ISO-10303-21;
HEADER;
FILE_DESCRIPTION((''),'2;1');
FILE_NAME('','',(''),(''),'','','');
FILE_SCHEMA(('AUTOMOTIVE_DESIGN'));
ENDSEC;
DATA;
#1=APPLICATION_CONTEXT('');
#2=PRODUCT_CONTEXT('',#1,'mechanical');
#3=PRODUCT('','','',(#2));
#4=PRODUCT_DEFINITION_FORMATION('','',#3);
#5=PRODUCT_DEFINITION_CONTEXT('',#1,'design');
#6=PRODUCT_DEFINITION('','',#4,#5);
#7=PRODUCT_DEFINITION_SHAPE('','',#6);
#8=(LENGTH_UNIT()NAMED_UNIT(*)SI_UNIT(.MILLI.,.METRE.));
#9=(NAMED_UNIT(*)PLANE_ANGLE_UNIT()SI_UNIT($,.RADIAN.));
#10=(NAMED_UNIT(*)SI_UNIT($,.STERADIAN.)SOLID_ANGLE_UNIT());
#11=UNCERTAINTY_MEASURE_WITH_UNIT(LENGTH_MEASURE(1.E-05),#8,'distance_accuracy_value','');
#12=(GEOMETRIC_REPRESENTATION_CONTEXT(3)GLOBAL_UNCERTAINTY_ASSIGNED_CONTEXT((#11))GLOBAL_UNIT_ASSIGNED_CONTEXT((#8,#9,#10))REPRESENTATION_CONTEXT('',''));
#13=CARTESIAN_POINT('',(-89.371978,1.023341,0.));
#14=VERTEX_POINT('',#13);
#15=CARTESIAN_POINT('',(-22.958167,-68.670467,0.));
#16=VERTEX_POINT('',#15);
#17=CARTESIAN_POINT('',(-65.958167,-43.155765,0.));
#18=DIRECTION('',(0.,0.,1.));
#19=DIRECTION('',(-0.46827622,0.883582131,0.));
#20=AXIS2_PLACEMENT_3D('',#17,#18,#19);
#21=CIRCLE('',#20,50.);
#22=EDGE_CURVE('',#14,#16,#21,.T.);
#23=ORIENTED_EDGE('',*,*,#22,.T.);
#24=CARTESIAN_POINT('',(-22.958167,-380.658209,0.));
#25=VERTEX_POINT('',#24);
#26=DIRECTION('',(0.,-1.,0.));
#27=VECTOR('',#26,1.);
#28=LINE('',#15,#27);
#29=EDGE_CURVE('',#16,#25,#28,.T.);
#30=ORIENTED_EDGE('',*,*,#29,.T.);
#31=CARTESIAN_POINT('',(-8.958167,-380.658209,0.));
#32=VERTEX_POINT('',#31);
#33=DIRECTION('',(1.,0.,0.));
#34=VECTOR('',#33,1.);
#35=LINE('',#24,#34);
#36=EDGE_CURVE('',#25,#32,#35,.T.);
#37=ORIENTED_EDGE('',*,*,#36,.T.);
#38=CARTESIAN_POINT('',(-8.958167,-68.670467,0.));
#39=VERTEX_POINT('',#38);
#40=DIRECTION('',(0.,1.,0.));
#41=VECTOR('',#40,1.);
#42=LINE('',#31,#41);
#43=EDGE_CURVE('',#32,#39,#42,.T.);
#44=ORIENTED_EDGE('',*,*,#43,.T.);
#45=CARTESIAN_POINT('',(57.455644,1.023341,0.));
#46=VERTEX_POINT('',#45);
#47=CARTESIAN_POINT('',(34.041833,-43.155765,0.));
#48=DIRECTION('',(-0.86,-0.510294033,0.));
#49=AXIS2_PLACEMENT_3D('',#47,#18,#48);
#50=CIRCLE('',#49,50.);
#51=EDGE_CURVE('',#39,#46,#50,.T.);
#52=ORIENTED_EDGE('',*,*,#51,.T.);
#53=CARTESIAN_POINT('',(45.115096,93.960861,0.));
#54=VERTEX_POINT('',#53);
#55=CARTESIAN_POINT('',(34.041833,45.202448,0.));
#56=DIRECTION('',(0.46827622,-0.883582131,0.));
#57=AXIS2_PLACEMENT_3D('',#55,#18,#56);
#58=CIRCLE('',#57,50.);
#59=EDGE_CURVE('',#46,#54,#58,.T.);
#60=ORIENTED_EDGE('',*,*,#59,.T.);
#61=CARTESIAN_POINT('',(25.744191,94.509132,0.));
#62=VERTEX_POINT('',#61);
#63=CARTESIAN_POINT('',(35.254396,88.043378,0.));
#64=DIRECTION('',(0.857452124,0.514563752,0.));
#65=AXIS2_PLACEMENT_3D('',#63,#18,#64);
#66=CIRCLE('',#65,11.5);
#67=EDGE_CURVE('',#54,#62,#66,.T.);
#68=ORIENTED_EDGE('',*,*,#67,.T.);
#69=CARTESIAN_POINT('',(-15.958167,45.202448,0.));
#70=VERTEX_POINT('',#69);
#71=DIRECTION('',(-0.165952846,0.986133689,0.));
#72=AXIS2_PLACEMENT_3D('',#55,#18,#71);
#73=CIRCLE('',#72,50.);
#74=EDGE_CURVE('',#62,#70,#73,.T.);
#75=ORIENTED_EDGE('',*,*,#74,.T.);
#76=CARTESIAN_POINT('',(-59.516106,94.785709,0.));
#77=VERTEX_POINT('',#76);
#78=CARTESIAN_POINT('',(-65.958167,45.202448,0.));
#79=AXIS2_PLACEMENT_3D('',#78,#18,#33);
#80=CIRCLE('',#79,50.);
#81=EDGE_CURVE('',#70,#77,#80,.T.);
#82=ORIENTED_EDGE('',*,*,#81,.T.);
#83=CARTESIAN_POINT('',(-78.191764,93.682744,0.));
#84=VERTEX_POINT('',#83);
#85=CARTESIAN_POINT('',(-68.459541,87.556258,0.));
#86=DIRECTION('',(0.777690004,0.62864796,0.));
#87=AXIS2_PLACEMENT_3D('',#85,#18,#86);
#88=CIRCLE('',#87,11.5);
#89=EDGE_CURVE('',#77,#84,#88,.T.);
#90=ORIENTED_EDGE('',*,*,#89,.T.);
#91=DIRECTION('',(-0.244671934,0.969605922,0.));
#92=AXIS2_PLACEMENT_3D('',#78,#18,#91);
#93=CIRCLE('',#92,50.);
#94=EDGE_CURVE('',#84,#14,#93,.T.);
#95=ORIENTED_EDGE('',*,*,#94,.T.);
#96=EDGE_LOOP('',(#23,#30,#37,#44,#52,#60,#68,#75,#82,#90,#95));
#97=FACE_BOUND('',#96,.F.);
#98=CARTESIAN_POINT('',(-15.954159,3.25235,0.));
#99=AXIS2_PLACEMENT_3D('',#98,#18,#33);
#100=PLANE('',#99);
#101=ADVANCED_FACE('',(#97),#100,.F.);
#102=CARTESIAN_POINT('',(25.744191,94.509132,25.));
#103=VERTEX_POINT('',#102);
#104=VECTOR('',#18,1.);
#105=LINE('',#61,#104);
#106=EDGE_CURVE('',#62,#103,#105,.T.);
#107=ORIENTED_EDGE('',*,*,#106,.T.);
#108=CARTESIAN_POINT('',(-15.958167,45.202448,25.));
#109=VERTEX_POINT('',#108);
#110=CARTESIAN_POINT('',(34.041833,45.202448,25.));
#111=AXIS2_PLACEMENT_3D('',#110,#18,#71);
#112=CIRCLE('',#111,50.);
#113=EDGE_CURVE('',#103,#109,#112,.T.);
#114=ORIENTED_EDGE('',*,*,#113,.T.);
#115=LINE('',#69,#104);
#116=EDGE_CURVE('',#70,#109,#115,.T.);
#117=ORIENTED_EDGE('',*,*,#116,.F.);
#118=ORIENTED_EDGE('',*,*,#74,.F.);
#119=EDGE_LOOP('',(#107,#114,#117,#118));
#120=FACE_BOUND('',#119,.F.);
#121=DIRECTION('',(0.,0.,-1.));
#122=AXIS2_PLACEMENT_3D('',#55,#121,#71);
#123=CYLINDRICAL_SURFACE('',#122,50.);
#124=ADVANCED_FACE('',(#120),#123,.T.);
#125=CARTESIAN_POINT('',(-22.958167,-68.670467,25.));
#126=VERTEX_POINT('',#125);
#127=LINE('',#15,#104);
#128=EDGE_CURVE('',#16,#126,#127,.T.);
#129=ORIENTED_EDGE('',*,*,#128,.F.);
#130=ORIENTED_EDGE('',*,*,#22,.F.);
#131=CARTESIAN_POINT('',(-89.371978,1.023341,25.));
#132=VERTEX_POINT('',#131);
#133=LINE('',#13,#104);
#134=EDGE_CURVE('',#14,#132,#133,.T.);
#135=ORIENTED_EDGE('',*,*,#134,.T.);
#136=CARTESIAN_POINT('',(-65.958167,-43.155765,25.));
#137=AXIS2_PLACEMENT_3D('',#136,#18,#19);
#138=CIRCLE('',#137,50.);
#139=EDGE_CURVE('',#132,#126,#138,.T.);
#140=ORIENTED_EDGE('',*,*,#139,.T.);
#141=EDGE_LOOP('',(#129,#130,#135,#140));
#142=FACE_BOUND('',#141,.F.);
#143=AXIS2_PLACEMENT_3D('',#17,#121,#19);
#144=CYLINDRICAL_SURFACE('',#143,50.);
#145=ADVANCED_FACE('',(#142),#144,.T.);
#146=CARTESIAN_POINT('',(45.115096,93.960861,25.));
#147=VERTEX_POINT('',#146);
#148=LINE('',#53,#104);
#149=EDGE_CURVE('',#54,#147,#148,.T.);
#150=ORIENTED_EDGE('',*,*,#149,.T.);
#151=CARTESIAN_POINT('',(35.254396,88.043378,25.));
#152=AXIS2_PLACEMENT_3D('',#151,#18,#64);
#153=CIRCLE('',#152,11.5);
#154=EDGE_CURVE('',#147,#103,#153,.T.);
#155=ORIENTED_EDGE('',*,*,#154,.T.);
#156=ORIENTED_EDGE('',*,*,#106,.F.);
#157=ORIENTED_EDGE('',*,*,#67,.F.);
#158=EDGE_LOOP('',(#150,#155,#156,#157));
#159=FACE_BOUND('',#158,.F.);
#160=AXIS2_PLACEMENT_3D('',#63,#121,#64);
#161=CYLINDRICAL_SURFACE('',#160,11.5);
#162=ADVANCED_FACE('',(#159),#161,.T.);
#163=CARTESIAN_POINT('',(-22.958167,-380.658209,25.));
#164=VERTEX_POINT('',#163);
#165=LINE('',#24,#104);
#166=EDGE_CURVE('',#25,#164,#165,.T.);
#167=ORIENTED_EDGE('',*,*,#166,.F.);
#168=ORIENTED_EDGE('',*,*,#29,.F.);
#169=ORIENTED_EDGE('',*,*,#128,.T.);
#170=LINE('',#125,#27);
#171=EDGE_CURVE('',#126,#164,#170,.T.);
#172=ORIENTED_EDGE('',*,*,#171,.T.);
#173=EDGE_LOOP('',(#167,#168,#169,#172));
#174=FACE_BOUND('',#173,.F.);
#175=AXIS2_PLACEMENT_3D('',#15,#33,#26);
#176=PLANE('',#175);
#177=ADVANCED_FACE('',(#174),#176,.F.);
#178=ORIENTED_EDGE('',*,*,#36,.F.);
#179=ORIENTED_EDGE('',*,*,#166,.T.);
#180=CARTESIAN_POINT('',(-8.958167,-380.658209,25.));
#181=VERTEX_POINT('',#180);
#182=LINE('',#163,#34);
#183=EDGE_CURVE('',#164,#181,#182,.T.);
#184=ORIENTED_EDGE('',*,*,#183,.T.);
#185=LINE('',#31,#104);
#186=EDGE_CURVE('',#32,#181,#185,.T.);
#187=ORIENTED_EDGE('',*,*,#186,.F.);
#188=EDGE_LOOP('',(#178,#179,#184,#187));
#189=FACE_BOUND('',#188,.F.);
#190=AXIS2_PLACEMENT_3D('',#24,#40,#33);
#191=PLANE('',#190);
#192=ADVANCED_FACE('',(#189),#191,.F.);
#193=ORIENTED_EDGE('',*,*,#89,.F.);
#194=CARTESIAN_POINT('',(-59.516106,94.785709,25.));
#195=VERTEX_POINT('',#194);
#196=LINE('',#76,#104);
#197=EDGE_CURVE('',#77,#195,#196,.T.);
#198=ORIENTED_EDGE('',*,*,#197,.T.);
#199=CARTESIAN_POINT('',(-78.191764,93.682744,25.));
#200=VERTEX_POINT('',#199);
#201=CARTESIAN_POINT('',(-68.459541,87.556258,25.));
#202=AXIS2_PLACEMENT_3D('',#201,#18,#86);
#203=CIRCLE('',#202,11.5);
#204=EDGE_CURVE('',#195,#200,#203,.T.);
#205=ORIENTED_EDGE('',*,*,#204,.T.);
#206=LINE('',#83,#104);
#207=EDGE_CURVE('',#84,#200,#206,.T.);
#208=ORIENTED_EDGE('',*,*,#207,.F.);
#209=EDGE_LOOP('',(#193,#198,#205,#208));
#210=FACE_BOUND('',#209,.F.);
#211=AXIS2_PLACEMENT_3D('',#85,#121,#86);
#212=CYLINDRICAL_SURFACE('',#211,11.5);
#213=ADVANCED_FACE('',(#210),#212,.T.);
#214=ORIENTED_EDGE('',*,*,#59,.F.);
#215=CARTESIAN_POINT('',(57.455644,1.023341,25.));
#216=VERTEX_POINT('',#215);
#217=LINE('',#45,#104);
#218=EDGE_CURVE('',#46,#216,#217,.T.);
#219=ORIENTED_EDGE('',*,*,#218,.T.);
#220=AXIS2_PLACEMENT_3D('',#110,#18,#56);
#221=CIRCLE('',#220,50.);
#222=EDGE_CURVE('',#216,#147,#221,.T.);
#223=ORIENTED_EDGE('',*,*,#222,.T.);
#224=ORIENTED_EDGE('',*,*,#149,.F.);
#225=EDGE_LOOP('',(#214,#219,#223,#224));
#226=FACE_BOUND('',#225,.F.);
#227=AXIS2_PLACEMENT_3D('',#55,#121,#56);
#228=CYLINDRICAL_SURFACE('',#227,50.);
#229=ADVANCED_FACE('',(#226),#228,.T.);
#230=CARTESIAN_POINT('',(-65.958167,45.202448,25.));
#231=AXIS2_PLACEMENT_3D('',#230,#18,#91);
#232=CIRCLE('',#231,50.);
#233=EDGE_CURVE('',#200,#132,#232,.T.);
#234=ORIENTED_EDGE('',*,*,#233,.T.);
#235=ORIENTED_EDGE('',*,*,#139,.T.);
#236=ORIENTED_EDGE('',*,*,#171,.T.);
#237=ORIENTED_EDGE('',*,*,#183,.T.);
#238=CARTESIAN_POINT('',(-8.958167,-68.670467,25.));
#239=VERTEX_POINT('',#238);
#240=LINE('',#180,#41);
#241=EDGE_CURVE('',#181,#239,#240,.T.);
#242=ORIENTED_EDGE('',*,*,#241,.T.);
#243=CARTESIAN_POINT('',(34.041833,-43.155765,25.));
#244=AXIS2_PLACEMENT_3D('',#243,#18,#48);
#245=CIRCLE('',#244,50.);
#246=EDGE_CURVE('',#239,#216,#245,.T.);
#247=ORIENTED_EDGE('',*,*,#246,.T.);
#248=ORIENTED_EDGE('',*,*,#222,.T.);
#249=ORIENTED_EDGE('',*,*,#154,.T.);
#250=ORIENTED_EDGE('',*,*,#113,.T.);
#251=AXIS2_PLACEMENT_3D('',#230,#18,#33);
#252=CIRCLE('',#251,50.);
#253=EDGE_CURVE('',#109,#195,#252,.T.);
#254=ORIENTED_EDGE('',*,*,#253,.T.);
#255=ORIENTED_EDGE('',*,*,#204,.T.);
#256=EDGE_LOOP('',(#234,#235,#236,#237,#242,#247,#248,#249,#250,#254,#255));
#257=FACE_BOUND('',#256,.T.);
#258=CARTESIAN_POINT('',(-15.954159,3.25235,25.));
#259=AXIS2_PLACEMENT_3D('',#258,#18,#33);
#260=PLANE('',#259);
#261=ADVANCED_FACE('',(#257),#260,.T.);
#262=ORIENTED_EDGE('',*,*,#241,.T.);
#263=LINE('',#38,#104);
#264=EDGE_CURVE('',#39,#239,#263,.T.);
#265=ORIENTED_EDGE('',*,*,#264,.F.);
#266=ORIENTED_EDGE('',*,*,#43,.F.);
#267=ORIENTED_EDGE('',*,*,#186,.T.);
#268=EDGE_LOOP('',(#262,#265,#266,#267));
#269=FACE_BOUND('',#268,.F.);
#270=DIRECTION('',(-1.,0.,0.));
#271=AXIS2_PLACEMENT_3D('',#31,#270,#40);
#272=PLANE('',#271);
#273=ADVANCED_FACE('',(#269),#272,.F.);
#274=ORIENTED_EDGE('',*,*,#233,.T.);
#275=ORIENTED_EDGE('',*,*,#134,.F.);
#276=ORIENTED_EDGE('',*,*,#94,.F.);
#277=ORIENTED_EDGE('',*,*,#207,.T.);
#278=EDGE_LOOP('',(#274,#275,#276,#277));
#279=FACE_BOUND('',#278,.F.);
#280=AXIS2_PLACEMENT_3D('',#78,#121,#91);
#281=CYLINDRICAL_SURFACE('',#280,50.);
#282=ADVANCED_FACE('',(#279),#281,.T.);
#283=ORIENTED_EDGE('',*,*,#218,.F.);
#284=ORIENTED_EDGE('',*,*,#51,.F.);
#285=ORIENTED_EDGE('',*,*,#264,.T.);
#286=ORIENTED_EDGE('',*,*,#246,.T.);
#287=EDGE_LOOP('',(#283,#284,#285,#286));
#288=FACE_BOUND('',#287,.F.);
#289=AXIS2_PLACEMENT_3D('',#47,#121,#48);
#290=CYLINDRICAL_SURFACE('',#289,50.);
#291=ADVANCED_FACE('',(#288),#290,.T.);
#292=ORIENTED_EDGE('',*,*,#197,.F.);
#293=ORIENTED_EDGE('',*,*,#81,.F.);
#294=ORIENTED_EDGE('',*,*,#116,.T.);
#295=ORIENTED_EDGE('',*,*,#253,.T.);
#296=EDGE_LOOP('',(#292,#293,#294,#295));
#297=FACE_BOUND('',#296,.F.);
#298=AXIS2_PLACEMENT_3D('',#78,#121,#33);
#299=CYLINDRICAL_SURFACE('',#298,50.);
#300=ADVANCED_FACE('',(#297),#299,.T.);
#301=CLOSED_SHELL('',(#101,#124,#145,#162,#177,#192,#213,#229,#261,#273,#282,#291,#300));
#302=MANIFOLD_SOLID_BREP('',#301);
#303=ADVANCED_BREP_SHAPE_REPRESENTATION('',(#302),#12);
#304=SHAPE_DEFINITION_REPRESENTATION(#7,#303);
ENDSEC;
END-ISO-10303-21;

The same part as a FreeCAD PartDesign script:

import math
import FreeCAD as App
import Part
import Sketcher
from FreeCAD import Vector
Q = App.Units.Quantity

doc = App.newDocument("Part")
body = doc.addObject("PartDesign::Body", "Body")

# Sketch on XY plane
sketch1 = doc.addObject("Sketcher::SketchObject", "Sketch")
body.addObject(sketch1)
sketch1.AttachmentSupport = (doc.XY_Plane, [""])
sketch1.MapMode = "FlatFace"
sketch1.addGeometry([
    Part.LineSegment(Vector(-9, -381, 0), Vector(-9, -69, 0)),  # 0
    Part.ArcOfCircle(Part.Circle(Vector(34, -43, 0), Vector(0, 0, 1), 50), math.radians(-149), math.radians(62)),  # 1
    Part.ArcOfCircle(Part.Circle(Vector(34, 45, 0), Vector(0, 0, 1), 50), math.radians(-62), math.radians(77)),  # 2
    Part.ArcOfCircle(Part.Circle(Vector(35, 88, 0), Vector(0, 0, 1), 12), math.radians(31), math.radians(146)),  # 3
    Part.ArcOfCircle(Part.Circle(Vector(34, 45, 0), Vector(0, 0, 1), 50), math.radians(100), math.radians(180)),  # 4
    Part.ArcOfCircle(Part.Circle(Vector(-66, 45, 0), Vector(0, 0, 1), 50), math.radians(0), math.radians(83)),  # 5
    Part.ArcOfCircle(Part.Circle(Vector(-68, 88, 0), Vector(0, 0, 1), 12), math.radians(39), math.radians(148)),  # 6
    Part.ArcOfCircle(Part.Circle(Vector(-66, 45, 0), Vector(0, 0, 1), 50), math.radians(104), math.radians(242)),  # 7
    Part.ArcOfCircle(Part.Circle(Vector(-66, -43, 0), Vector(0, 0, 1), 50), math.radians(118), math.radians(329)),  # 8
    Part.LineSegment(Vector(-23, -69, 0), Vector(-23, -381, 0)),  # 9
    Part.LineSegment(Vector(-23, -381, 0), Vector(-9, -381, 0)),  # 10
], False)
sketch1.addConstraint([
    Sketcher.Constraint("Coincident", 0, 2, 1, 1),
    Sketcher.Constraint("Coincident", 1, 2, 2, 1),
    Sketcher.Constraint("Coincident", 2, 2, 3, 1),
    Sketcher.Constraint("Coincident", 3, 2, 4, 1),
    Sketcher.Constraint("Tangent", 4, 2, 5, 1),
    Sketcher.Constraint("Coincident", 5, 2, 6, 1),
    Sketcher.Constraint("Coincident", 6, 2, 7, 1),
    Sketcher.Constraint("Coincident", 7, 2, 8, 1),
    Sketcher.Constraint("Coincident", 8, 2, 9, 1),
    Sketcher.Constraint("Coincident", 9, 2, 10, 1),
    Sketcher.Constraint("Coincident", 10, 2, 0, 1),
    Sketcher.Constraint("Vertical", 0),
    Sketcher.Constraint("Vertical", 9),
    Sketcher.Constraint("Horizontal", 10),
    Sketcher.Constraint("Coincident", 4, 3, 2, 3),
    Sketcher.Constraint("Coincident", 7, 3, 5, 3),
    Sketcher.Constraint("Equal", 1, 2),
    Sketcher.Constraint("Equal", 2, 4),
    Sketcher.Constraint("Equal", 4, 5),
    Sketcher.Constraint("Equal", 3, 6),
    Sketcher.Constraint("Equal", 5, 7),
    Sketcher.Constraint("Equal", 7, 8),
    Sketcher.Constraint("Horizontal", 4, 3, 5, 3),
    Sketcher.Constraint("Horizontal", 1, 3, 8, 3),
    Sketcher.Constraint("Horizontal", 1, 2, 7, 2),
    Sketcher.Constraint("Horizontal", 0, 2, 8, 2),
    Sketcher.Constraint("Vertical", 1, 3, 2, 3),
    Sketcher.Constraint("Radius", 1, Q("50 mm")),
    Sketcher.Constraint("Radius", 3, Q("11.5 mm")),
    Sketcher.Constraint("DistanceX", 10, 1, 10, 2, Q("14 mm")),
    Sketcher.Constraint("DistanceX", 3, 3, 2, 2, Q("9.860699 mm")),
    Sketcher.Constraint("DistanceY", 0, 1, 0, 2, Q("311.987742 mm")),
    Sketcher.Constraint("DistanceX", 6, 3, -1, 1, Q("68.459541 mm")),
    Sketcher.Constraint("DistanceY", -1, 1, 1, 2, Q("1.023341 mm")),
    Sketcher.Constraint("DistanceY", -1, 1, 2, 2, Q("93.960861 mm")),
    Sketcher.Constraint("DistanceX", -1, 1, 3, 2, Q("25.744191 mm")),
    Sketcher.Constraint("DistanceY", -1, 1, 5, 2, Q("94.785709 mm")),
    Sketcher.Constraint("DistanceX", 7, 2, -1, 1, Q("89.371978 mm")),
])
pad1 = doc.addObject("PartDesign::Pad", "Pad")
body.addObject(pad1)
pad1.Profile = sketch1
pad1.Length = 25

# Sketch on XY plane
sketch2 = doc.addObject("Sketcher::SketchObject", "Sketch001")
body.addObject(sketch2)
sketch2.AttachmentSupport = (doc.XY_Plane, [""])
sketch2.MapMode = "FlatFace"
sketch2.addGeometry([
    Part.LineSegment(Vector(-9, -381, 0), Vector(-9, -69, 0)),  # 0
    Part.ArcOfCircle(Part.Circle(Vector(34, -43, 0), Vector(0, 0, 1), 50), math.radians(-149), math.radians(62)),  # 1
    Part.ArcOfCircle(Part.Circle(Vector(34, 45, 0), Vector(0, 0, 1), 50), math.radians(-62), math.radians(77)),  # 2
    Part.ArcOfCircle(Part.Circle(Vector(35, 88, 0), Vector(0, 0, 1), 12), math.radians(31), math.radians(146)),  # 3
    Part.ArcOfCircle(Part.Circle(Vector(34, 45, 0), Vector(0, 0, 1), 50), math.radians(100), math.radians(180)),  # 4
    Part.ArcOfCircle(Part.Circle(Vector(-66, 45, 0), Vector(0, 0, 1), 50), math.radians(0), math.radians(83)),  # 5
    Part.ArcOfCircle(Part.Circle(Vector(-68, 88, 0), Vector(0, 0, 1), 12), math.radians(39), math.radians(148)),  # 6
    Part.ArcOfCircle(Part.Circle(Vector(-66, 45, 0), Vector(0, 0, 1), 50), math.radians(104), math.radians(242)),  # 7
    Part.ArcOfCircle(Part.Circle(Vector(-66, -43, 0), Vector(0, 0, 1), 50), math.radians(118), math.radians(329)),  # 8
    Part.LineSegment(Vector(-23, -69, 0), Vector(-23, -381, 0)),  # 9
    Part.LineSegment(Vector(-23, -381, 0), Vector(-9, -381, 0)),  # 10
], False)
sketch2.addConstraint([
    Sketcher.Constraint("Coincident", 0, 2, 1, 1),
    Sketcher.Constraint("Coincident", 1, 2, 2, 1),
    Sketcher.Constraint("Coincident", 2, 2, 3, 1),
    Sketcher.Constraint("Coincident", 3, 2, 4, 1),
    Sketcher.Constraint("Tangent", 4, 2, 5, 1),
    Sketcher.Constraint("Coincident", 5, 2, 6, 1),
    Sketcher.Constraint("Coincident", 6, 2, 7, 1),
    Sketcher.Constraint("Coincident", 7, 2, 8, 1),
    Sketcher.Constraint("Coincident", 8, 2, 9, 1),
    Sketcher.Constraint("Coincident", 9, 2, 10, 1),
    Sketcher.Constraint("Coincident", 10, 2, 0, 1),
    Sketcher.Constraint("Vertical", 0),
    Sketcher.Constraint("Vertical", 9),
    Sketcher.Constraint("Horizontal", 10),
    Sketcher.Constraint("Coincident", 4, 3, 2, 3),
    Sketcher.Constraint("Coincident", 7, 3, 5, 3),
    Sketcher.Constraint("Equal", 1, 2),
    Sketcher.Constraint("Equal", 2, 4),
    Sketcher.Constraint("Equal", 4, 5),
    Sketcher.Constraint("Equal", 3, 6),
    Sketcher.Constraint("Equal", 5, 7),
    Sketcher.Constraint("Equal", 7, 8),
    Sketcher.Constraint("Horizontal", 4, 3, 5, 3),
    Sketcher.Constraint("Horizontal", 1, 3, 8, 3),
    Sketcher.Constraint("Horizontal", 1, 2, 7, 2),
    Sketcher.Constraint("Horizontal", 0, 2, 8, 2),
    Sketcher.Constraint("Vertical", 1, 3, 2, 3),
    Sketcher.Constraint("Radius", 1, Q("50 mm")),
    Sketcher.Constraint("Radius", 3, Q("11.5 mm")),
    Sketcher.Constraint("DistanceX", 10, 1, 10, 2, Q("14 mm")),
    Sketcher.Constraint("DistanceX", 3, 3, 2, 2, Q("9.860699 mm")),
    Sketcher.Constraint("DistanceY", 0, 1, 0, 2, Q("311.987742 mm")),
    Sketcher.Constraint("DistanceX", 6, 3, -1, 1, Q("68.459541 mm")),
    Sketcher.Constraint("DistanceY", -1, 1, 1, 2, Q("1.023341 mm")),
    Sketcher.Constraint("DistanceY", -1, 1, 2, 2, Q("93.960861 mm")),
    Sketcher.Constraint("DistanceX", -1, 1, 3, 2, Q("25.744191 mm")),
    Sketcher.Constraint("DistanceY", -1, 1, 5, 2, Q("94.785709 mm")),
    Sketcher.Constraint("DistanceX", 7, 2, -1, 1, Q("89.371978 mm")),
])
pad2 = doc.addObject("PartDesign::Pad", "Pad001")
body.addObject(pad2)
pad2.Profile = sketch2
pad2.Length = 25

doc.recompute()
